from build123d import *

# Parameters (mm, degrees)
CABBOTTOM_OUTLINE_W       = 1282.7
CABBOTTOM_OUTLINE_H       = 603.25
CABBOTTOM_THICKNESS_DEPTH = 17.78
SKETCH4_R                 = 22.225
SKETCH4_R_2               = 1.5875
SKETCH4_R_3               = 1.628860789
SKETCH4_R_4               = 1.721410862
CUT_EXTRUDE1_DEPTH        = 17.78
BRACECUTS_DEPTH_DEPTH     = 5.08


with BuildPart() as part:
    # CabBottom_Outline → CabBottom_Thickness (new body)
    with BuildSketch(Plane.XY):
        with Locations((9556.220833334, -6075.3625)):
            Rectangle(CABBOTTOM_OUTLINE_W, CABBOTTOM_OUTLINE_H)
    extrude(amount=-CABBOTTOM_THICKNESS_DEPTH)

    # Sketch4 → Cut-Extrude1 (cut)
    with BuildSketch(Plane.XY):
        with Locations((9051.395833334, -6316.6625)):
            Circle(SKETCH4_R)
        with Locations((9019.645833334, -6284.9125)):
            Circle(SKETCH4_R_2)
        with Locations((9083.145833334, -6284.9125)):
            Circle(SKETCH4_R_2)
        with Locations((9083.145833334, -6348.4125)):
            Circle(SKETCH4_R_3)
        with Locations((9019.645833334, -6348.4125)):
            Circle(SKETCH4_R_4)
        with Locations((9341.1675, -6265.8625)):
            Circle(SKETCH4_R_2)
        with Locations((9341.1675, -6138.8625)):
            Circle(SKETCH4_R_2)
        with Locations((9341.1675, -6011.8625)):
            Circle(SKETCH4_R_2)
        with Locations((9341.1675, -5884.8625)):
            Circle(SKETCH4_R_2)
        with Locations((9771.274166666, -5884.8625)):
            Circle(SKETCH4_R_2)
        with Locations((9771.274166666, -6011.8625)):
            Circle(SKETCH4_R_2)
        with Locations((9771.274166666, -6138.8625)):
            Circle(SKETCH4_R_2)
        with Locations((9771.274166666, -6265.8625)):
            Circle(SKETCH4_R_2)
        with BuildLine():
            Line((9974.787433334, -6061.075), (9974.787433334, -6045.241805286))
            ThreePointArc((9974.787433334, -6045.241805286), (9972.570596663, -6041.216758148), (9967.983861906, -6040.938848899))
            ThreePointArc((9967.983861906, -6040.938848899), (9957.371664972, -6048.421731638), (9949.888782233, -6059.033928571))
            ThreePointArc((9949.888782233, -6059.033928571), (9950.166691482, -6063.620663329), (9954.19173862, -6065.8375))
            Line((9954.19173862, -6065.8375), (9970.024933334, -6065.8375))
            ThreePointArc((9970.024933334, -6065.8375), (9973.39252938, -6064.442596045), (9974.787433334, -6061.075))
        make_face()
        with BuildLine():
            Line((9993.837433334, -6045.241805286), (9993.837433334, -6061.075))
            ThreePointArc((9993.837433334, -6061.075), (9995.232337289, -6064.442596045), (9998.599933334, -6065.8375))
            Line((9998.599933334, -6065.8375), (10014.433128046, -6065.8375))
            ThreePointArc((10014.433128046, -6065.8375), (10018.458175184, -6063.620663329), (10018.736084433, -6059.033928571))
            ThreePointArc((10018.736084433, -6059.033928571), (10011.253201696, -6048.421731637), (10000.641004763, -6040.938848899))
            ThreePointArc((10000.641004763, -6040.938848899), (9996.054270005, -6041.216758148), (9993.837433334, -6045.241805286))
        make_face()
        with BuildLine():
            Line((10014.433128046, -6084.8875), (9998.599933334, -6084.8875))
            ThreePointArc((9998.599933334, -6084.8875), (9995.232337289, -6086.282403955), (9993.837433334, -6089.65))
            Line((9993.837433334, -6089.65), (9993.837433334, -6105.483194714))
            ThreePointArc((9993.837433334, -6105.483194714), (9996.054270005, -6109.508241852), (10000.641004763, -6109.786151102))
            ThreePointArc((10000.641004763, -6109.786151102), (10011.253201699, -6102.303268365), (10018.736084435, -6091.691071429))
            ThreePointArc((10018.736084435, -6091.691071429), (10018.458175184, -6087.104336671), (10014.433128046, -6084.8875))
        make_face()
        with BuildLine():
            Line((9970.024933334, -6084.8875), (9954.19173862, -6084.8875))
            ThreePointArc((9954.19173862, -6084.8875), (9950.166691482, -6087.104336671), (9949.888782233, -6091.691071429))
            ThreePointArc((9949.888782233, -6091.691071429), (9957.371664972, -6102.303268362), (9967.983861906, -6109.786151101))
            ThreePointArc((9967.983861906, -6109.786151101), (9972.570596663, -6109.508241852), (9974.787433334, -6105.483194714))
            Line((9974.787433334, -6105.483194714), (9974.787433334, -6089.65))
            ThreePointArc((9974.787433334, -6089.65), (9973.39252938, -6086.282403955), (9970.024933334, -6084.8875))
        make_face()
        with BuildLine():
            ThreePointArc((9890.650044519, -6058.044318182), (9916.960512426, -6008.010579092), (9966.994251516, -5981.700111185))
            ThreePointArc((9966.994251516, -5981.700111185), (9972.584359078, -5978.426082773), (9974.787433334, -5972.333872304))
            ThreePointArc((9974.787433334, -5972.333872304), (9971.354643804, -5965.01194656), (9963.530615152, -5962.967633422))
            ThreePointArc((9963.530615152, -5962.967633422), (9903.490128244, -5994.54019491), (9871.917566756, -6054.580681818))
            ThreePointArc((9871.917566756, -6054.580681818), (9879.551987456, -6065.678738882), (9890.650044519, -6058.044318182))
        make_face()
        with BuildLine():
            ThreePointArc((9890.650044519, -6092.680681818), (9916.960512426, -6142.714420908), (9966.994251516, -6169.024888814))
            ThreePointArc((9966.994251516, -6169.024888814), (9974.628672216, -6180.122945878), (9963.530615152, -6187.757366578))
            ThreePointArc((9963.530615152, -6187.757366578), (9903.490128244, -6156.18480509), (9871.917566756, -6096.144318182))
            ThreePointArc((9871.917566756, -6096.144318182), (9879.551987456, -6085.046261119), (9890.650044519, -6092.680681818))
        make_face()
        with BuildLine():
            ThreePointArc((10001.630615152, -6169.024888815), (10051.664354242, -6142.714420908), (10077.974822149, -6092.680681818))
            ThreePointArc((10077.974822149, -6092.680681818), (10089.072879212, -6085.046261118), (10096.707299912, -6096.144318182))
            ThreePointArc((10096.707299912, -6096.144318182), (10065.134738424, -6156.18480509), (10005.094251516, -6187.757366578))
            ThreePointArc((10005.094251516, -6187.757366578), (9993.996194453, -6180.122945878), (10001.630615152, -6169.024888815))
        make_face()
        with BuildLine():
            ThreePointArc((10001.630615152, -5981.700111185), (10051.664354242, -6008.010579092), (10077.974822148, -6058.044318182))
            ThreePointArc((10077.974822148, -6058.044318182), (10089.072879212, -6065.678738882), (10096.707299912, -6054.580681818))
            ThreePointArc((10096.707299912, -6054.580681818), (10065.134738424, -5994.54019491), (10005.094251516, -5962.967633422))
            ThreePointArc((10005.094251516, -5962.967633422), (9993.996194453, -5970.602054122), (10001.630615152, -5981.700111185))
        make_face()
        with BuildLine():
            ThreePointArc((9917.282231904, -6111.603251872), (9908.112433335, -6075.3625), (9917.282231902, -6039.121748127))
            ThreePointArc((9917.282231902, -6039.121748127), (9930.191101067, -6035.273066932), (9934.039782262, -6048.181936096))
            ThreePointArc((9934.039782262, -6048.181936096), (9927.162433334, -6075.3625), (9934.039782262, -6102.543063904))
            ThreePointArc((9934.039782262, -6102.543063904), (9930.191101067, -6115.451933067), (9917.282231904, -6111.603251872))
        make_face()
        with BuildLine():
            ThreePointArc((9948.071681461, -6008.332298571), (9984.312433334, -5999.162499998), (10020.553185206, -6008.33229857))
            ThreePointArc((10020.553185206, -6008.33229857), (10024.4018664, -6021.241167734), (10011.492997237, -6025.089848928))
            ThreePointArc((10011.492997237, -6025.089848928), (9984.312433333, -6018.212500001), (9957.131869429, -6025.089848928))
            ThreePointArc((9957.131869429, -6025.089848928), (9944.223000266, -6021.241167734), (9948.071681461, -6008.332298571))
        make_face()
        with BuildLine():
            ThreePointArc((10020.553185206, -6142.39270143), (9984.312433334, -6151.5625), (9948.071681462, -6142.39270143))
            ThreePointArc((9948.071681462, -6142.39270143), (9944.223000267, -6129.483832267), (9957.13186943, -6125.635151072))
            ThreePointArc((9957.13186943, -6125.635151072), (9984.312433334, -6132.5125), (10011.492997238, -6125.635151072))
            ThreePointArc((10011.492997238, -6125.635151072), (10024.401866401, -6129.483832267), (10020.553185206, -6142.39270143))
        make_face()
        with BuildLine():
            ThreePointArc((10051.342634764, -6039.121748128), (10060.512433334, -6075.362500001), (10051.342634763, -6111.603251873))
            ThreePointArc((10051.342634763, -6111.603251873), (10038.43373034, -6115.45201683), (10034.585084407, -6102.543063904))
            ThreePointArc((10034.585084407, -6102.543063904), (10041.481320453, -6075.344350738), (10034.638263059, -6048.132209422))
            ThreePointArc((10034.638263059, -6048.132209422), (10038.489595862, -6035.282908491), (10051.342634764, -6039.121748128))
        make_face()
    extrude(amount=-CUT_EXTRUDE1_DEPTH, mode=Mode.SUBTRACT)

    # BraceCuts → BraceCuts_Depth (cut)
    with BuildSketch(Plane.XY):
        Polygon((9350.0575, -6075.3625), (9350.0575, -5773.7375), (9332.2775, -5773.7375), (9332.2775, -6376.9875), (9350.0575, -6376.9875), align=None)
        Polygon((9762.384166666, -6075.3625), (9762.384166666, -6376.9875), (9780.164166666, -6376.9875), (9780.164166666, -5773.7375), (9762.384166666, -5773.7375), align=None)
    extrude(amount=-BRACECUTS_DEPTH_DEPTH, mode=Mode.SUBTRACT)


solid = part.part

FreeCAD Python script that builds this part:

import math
import FreeCAD as App
import Part
import Sketcher

V = App.Vector
Q = App.Units.Quantity


def add_polygon(sketch, points):
    """Adds a closed chain of lines whose ends are joined by coincident constraints."""
    first, n = sketch.GeometryCount, len(points)
    for a, b in zip(points, points[1:] + points[:1]):
        sketch.addGeometry(Part.LineSegment(App.Vector(*a, 0), App.Vector(*b, 0)), False)
    for i in range(n):
        sketch.addConstraint(Sketcher.Constraint("Coincident", first + i, 2, first + (i + 1) % n, 1))

doc = App.newDocument("Part")
body = doc.addObject("PartDesign::Body", "Body")

sketch1 = body.newObject("Sketcher::SketchObject", "Sketch")
sketch1.AttachmentSupport = (doc.getObject("XY_Plane"), [""])
sketch1.MapMode = "FlatFace"
add_polygon(sketch1, [(8914.870833, -5773.7375), (8914.870833, -6376.9875), (10197.570833, -6376.9875), (10197.570833, -5773.7375)])
sketch1.addConstraint(Sketcher.Constraint("Vertical", 0))
sketch1.addConstraint(Sketcher.Constraint("Horizontal", 1))
sketch1.addConstraint(Sketcher.Constraint("Vertical", 2))
sketch1.addConstraint(Sketcher.Constraint("Horizontal", 3))
sketch1.addConstraint(Sketcher.Constraint("DistanceX", 1, 1, 1, 2, Q("50.5 in")))
sketch1.addConstraint(Sketcher.Constraint("DistanceY", 0, 2, 0, 1, Q("23.75 in")))
sketch1.addConstraint(Sketcher.Constraint("DistanceY", 0, 2, -1, 1, Q("251.0625 in")))
sketch1.addConstraint(Sketcher.Constraint("DistanceX", -1, 1, 0, 2, 8914.870833))
pad1 = body.newObject("PartDesign::Pad", "Pad")
pad1.Profile = sketch1
pad1.Length = Q("0.7 in")
pad1.Reversed = True

sketch2 = body.newObject("Sketcher::SketchObject", "Sketch001")
sketch2.AttachmentSupport = (doc.getObject("XY_Plane"), [""])
sketch2.MapMode = "FlatFace"
sketch2.addGeometry(Part.Circle(V(9051.395833, -6316.6625, 0), V(0, 0, 1), 22.225), False)
sketch2.addGeometry(Part.Circle(V(9019.645833, -6284.9125, 0), V(0, 0, 1), 1.5875), False)
sketch2.addGeometry(Part.Circle(V(9083.145833, -6284.9125, 0), V(0, 0, 1), 1.5875), False)
sketch2.addGeometry(Part.Circle(V(9083.145833, -6348.4125, 0), V(0, 0, 1), 1.628861), False)
sketch2.addGeometry(Part.Circle(V(9019.645833, -6348.4125, 0), V(0, 0, 1), 1.721411), False)
sketch2.addGeometry(Part.Circle(V(9341.1675, -6265.8625, 0), V(0, 0, 1), 1.5875), False)
sketch2.addGeometry(Part.Circle(V(9341.1675, -6138.8625, 0), V(0, 0, 1), 1.5875), False)
sketch2.addGeometry(Part.Circle(V(9341.1675, -6011.8625, 0), V(0, 0, 1), 1.5875), False)
sketch2.addGeometry(Part.Circle(V(9341.1675, -5884.8625, 0), V(0, 0, 1), 1.5875), False)
sketch2.addGeometry(Part.Circle(V(9771.274167, -5884.8625, 0), V(0, 0, 1), 1.5875), False)
sketch2.addGeometry(Part.Circle(V(9771.274167, -6011.8625, 0), V(0, 0, 1), 1.5875), False)
sketch2.addGeometry(Part.Circle(V(9771.274167, -6138.8625, 0), V(0, 0, 1), 1.5875), False)
sketch2.addGeometry(Part.Circle(V(9771.274167, -6265.8625, 0), V(0, 0, 1), 1.5875), False)
sketch2.addGeometry(Part.LineSegment(V(9974.787433, -6061.075, 0), V(9974.787433, -6045.241805, 0)), False)
sketch2.addGeometry(Part.ArcOfCircle(Part.Circle(V(9970.024933, -6045.241805, 0), V(0, 0, 1), 4.7625), math.radians(0), math.radians(115.376934)), False)
sketch2.addGeometry(Part.ArcOfCircle(Part.Circle(V(9984.312433, -6075.3625, 0), V(0, 0, 1), 38.1), math.radians(115.376934), math.radians(154.623066)), False)
sketch2.addGeometry(Part.ArcOfCircle(Part.Circle(V(9954.191739, -6061.075, 0), V(0, 0, 1), 4.7625), math.radians(154.623066), math.radians(270)), False)
sketch2.addGeometry(Part.LineSegment(V(9954.191739, -6065.8375, 0), V(9970.024933, -6065.8375, 0)), False)
sketch2.addGeometry(Part.ArcOfCircle(Part.Circle(V(9970.024933, -6061.075, 0), V(0, 0, 1), 4.7625), math.radians(-90), math.radians(0)), False)
sketch2.addGeometry(Part.LineSegment(V(9993.837433, -6045.241805, 0), V(9993.837433, -6061.075, 0)), False)
sketch2.addGeometry(Part.ArcOfCircle(Part.Circle(V(9998.599933, -6061.075, 0), V(0, 0, 1), 4.7625), math.radians(-180), math.radians(-90)), False)
sketch2.addGeometry(Part.LineSegment(V(9998.599933, -6065.8375, 0), V(10014.433128, -6065.8375, 0)), False)
sketch2.addGeometry(Part.ArcOfCircle(Part.Circle(V(10014.433128, -6061.075, 0), V(0, 0, 1), 4.7625), math.radians(-90), math.radians(25.376934)), False)
sketch2.addGeometry(Part.ArcOfCircle(Part.Circle(V(9984.312433, -6075.3625, 0), V(0, 0, 1), 38.1), math.radians(25.376934), math.radians(64.623066)), False)
sketch2.addGeometry(Part.ArcOfCircle(Part.Circle(V(9998.599933, -6045.241805, 0), V(0, 0, 1), 4.7625), math.radians(64.623066), math.radians(180)), False)
sketch2.addGeometry(Part.LineSegment(V(10014.433128, -6084.8875, 0), V(9998.599933, -6084.8875, 0)), False)
sketch2.addGeometry(Part.ArcOfCircle(Part.Circle(V(9998.599933, -6089.65, 0), V(0, 0, 1), 4.7625), math.radians(90), math.radians(180)), False)
sketch2.addGeometry(Part.LineSegment(V(9993.837433, -6089.65, 0), V(9993.837433, -6105.483195, 0)), False)
sketch2.addGeometry(Part.ArcOfCircle(Part.Circle(V(9998.599933, -6105.483195, 0), V(0, 0, 1), 4.7625), math.radians(-180), math.radians(-64.623066)), False)
sketch2.addGeometry(Part.ArcOfCircle(Part.Circle(V(9984.312433, -6075.3625, 0), V(0, 0, 1), 38.1), math.radians(-64.623066), math.radians(-25.376934)), False)
sketch2.addGeometry(Part.ArcOfCircle(Part.Circle(V(10014.433128, -6089.65, 0), V(0, 0, 1), 4.7625), math.radians(-25.376933), math.radians(90)), False)
sketch2.addGeometry(Part.LineSegment(V(9970.024933, -6084.8875, 0), V(9954.191739, -6084.8875, 0)), False)
sketch2.addGeometry(Part.ArcOfCircle(Part.Circle(V(9954.191739, -6089.65, 0), V(0, 0, 1), 4.7625), math.radians(90), math.radians(205.376934)), False)
sketch2.addGeometry(Part.ArcOfCircle(Part.Circle(V(9984.312433, -6075.3625, 0), V(0, 0, 1), 38.1), math.radians(-154.623066), math.radians(-115.376934)), False)
sketch2.addGeometry(Part.ArcOfCircle(Part.Circle(V(9970.024933, -6105.483195, 0), V(0, 0, 1), 4.7625), math.radians(-115.376934), math.radians(0)), False)
sketch2.addGeometry(Part.LineSegment(V(9974.787433, -6105.483195, 0), V(9974.787433, -6089.65, 0)), False)
sketch2.addGeometry(Part.ArcOfCircle(Part.Circle(V(9970.024933, -6089.65, 0), V(0, 0, 1), 4.7625), math.radians(0), math.radians(90)), False)
sketch2.addGeometry(Part.ArcOfCircle(Part.Circle(V(9984.312433, -6075.3625, 0), V(0, 0, 1), 95.25), math.radians(100.475682), math.radians(169.524318)), False)
sketch2.addGeometry(Part.ArcOfCircle(Part.Circle(V(9965.262433, -5972.333872, 0), V(0, 0, 1), 9.525), math.radians(-79.524318), math.radians(0)), False)
sketch2.addGeometry(Part.ArcOfCircle(Part.Circle(V(9965.262433, -5972.333872, 0), V(0, 0, 1), 9.525), math.radians(0), math.radians(100.475682)), False)
sketch2.addGeometry(Part.ArcOfCircle(Part.Circle(V(9984.312433, -6075.3625, 0), V(0, 0, 1), 114.3), math.radians(100.475682), math.radians(169.524318)), False)
sketch2.addGeometry(Part.ArcOfCircle(Part.Circle(V(9881.283806, -6056.3125, 0), V(0, 0, 1), 9.525), math.radians(169.524318), math.radians(349.524318)), False)
sketch2.addGeometry(Part.ArcOfCircle(Part.Circle(V(9984.312433, -6075.3625, 0), V(0, 0, 1), 95.25), math.radians(-169.524318), math.radians(-100.475682)), False)
sketch2.addGeometry(Part.ArcOfCircle(Part.Circle(V(9881.283806, -6094.4125, 0), V(0, 0, 1), 9.525), math.radians(10.475682), math.radians(190.475682)), False)
sketch2.addGeometry(Part.ArcOfCircle(Part.Circle(V(9984.312433, -6075.3625, 0), V(0, 0, 1), 114.3), math.radians(-169.524318), math.radians(-100.475682)), False)
sketch2.addGeometry(Part.ArcOfCircle(Part.Circle(V(9965.262433, -6178.391128, 0), V(0, 0, 1), 9.525), math.radians(-100.475682), math.radians(79.524318)), False)
sketch2.addGeometry(Part.ArcOfCircle(Part.Circle(V(9984.312433, -6075.3625, 0), V(0, 0, 1), 95.25), math.radians(-79.524318), math.radians(-10.475682)), False)
sketch2.addGeometry(Part.ArcOfCircle(Part.Circle(V(10003.362433, -6178.391128, 0), V(0, 0, 1), 9.525), math.radians(100.475682), math.radians(280.475682)), False)
sketch2.addGeometry(Part.ArcOfCircle(Part.Circle(V(9984.312433, -6075.3625, 0), V(0, 0, 1), 114.3), math.radians(-79.524318), math.radians(-10.475682)), False)
sketch2.addGeometry(Part.ArcOfCircle(Part.Circle(V(10087.341061, -6094.4125, 0), V(0, 0, 1), 9.525), math.radians(-10.475682), math.radians(169.524318)), False)
sketch2.addGeometry(Part.ArcOfCircle(Part.Circle(V(9984.312433, -6075.3625, 0), V(0, 0, 1), 95.25), math.radians(10.475682), math.radians(79.524318)), False)
sketch2.addGeometry(Part.ArcOfCircle(Part.Circle(V(10087.341061, -6056.3125, 0), V(0, 0, 1), 9.525), math.radians(-169.524318), math.radians(10.475682)), False)
sketch2.addGeometry(Part.ArcOfCircle(Part.Circle(V(9984.312433, -6075.3625, 0), V(0, 0, 1), 114.3), math.radians(10.475682), math.radians(79.524318)), False)
sketch2.addGeometry(Part.ArcOfCircle(Part.Circle(V(10003.362433, -5972.333872, 0), V(0, 0, 1), 9.525), math.radians(79.524318), math.radians(259.524318)), False)
sketch2.addGeometry(Part.ArcOfCircle(Part.Circle(V(9984.312433, -6075.3625, 0), V(0, 0, 1), 76.2), math.radians(151.60155), math.radians(208.39845)), False)
sketch2.addGeometry(Part.ArcOfCircle(Part.Circle(V(9925.661007, -6107.073158, 0), V(0, 0, 1), 9.525), math.radians(-151.60155), math.radians(28.39845)), False)
sketch2.addGeometry(Part.ArcOfCircle(Part.Circle(V(9984.312433, -6075.3625, 0), V(0, 0, 1), 57.15), math.radians(151.60155), math.radians(208.39845)), False)
sketch2.addGeometry(Part.ArcOfCircle(Part.Circle(V(9925.661007, -6043.651842, 0), V(0, 0, 1), 9.525), math.radians(-28.39845), math.radians(151.60155)), False)
sketch2.addGeometry(Part.ArcOfCircle(Part.Circle(V(9984.312433, -6075.3625, 0), V(0, 0, 1), 76.2), math.radians(61.60155), math.radians(118.39845)), False)
sketch2.addGeometry(Part.ArcOfCircle(Part.Circle(V(9952.601775, -6016.711074, 0), V(0, 0, 1), 9.525), math.radians(118.39845), math.radians(298.39845)), False)
sketch2.addGeometry(Part.ArcOfCircle(Part.Circle(V(9984.312433, -6075.3625, 0), V(0, 0, 1), 57.15), math.radians(61.60155), math.radians(118.39845)), False)
sketch2.addGeometry(Part.ArcOfCircle(Part.Circle(V(10016.023091, -6016.711074, 0), V(0, 0, 1), 9.525), math.radians(-118.39845), math.radians(61.60155)), False)
sketch2.addGeometry(Part.ArcOfCircle(Part.Circle(V(9984.312433, -6075.3625, 0), V(0, 0, 1), 76.2), math.radians(-118.39845), math.radians(-61.60155)), False)
sketch2.addGeometry(Part.ArcOfCircle(Part.Circle(V(10016.023091, -6134.013926, 0), V(0, 0, 1), 9.525), math.radians(-61.60155), math.radians(118.39845)), False)
sketch2.addGeometry(Part.ArcOfCircle(Part.Circle(V(9984.312433, -6075.3625, 0), V(0, 0, 1), 57.15), math.radians(-118.39845), math.radians(-61.60155)), False)
sketch2.addGeometry(Part.ArcOfCircle(Part.Circle(V(9952.601775, -6134.013926, 0), V(0, 0, 1), 9.525), math.radians(61.60155), math.radians(241.60155)), False)
sketch2.addGeometry(Part.ArcOfCircle(Part.Circle(V(9984.312433, -6075.3625, 0), V(0, 0, 1), 76.2), math.radians(-28.39845), math.radians(28.39845)), False)
sketch2.addGeometry(Part.ArcOfCircle(Part.Circle(V(10042.994829, -6043.635098, 0), V(0, 0, 1), 9.489794), math.radians(28.39845), math.radians(208.287051)), False)
sketch2.addGeometry(Part.ArcOfCircle(Part.Circle(V(9984.176531, -6075.288344, 0), V(0, 0, 1), 57.304817), math.radians(-28.399048), math.radians(28.287051)), False)
sketch2.addGeometry(Part.ArcOfCircle(Part.Circle(V(10042.963817, -6107.073237, 0), V(0, 0, 1), 9.525), math.radians(151.601005), math.radians(331.602094)), False)
sketch2.addConstraint(Sketcher.Constraint("Tangent", 13, 2, 14, 1))
sketch2.addConstraint(Sketcher.Constraint("Tangent", 14, 2, 15, 1))
sketch2.addConstraint(Sketcher.Constraint("Tangent", 15, 2, 16, 1))
sketch2.addConstraint(Sketcher.Constraint("Tangent", 16, 2, 17, 1))
sketch2.addConstraint(Sketcher.Constraint("Tangent", 17, 2, 18, 1))
sketch2.addConstraint(Sketcher.Constraint("Tangent", 18, 2, 13, 1))
sketch2.addConstraint(Sketcher.Constraint("Tangent", 19, 2, 20, 1))
sketch2.addConstraint(Sketcher.Constraint("Tangent", 20, 2, 21, 1))
sketch2.addConstraint(Sketcher.Constraint("Tangent", 21, 2, 22, 1))
sketch2.addConstraint(Sketcher.Constraint("Tangent", 22, 2, 23, 1))
sketch2.addConstraint(Sketcher.Constraint("Tangent", 23, 2, 24, 1))
sketch2.addConstraint(Sketcher.Constraint("Tangent", 24, 2, 19, 1))
sketch2.addConstraint(Sketcher.Constraint("Tangent", 25, 2, 26, 1))
sketch2.addConstraint(Sketcher.Constraint("Tangent", 26, 2, 27, 1))
sketch2.addConstraint(Sketcher.Constraint("Tangent", 27, 2, 28, 1))
sketch2.addConstraint(Sketcher.Constraint("Tangent", 28, 2, 29, 1))
sketch2.addConstraint(Sketcher.Constraint("Tangent", 29, 2, 30, 1))
sketch2.addConstraint(Sketcher.Constraint("Tangent", 30, 2, 25, 1))
sketch2.addConstraint(Sketcher.Constraint("Tangent", 31, 2, 32, 1))
sketch2.addConstraint(Sketcher.Constraint("Tangent", 32, 2, 33, 1))
sketch2.addConstraint(Sketcher.Constraint("Tangent", 33, 2, 34, 1))
sketch2.addConstraint(Sketcher.Constraint("Tangent", 34, 2, 35, 1))
sketch2.addConstraint(Sketcher.Constraint("Tangent", 35, 2, 36, 1))
sketch2.addConstraint(Sketcher.Constraint("Tangent", 36, 2, 31, 1))
sketch2.addConstraint(Sketcher.Constraint("Tangent", 37, 1, 38, 1))
sketch2.addConstraint(Sketcher.Constraint("Tangent", 38, 2, 39, 1))
sketch2.addConstraint(Sketcher.Constraint("Tangent", 39, 2, 40, 1))
sketch2.addConstraint(Sketcher.Constraint("Tangent", 40, 2, 41, 1))
sketch2.addConstraint(Sketcher.Constraint("Tangent", 41, 2, 37, 2))
sketch2.addConstraint(Sketcher.Constraint("Tangent", 42, 1, 43, 1))
sketch2.addConstraint(Sketcher.Constraint("Tangent", 43, 2, 44, 1))
sketch2.addConstraint(Sketcher.Constraint("Tangent", 44, 2, 45, 1))
sketch2.addConstraint(Sketcher.Constraint("Tangent", 45, 2, 42, 2))
sketch2.addConstraint(Sketcher.Constraint("Tangent", 46, 1, 47, 1))
sketch2.addConstraint(Sketcher.Constraint("Tangent", 47, 2, 48, 1))
sketch2.addConstraint(Sketcher.Constraint("Tangent", 48, 2, 49, 1))
sketch2.addConstraint(Sketcher.Constraint("Tangent", 49, 2, 46, 2))
sketch2.addConstraint(Sketcher.Constraint("Tangent", 50, 1, 51, 1))
sketch2.addConstraint(Sketcher.Constraint("Tangent", 51, 2, 52, 1))
sketch2.addConstraint(Sketcher.Constraint("Tangent", 52, 2, 53, 1))
sketch2.addConstraint(Sketcher.Constraint("Tangent", 53, 2, 50, 2))
sketch2.addConstraint(Sketcher.Constraint("Tangent", 54, 2, 55, 1))
sketch2.addConstraint(Sketcher.Constraint("Tangent", 55, 2, 56, 2))
sketch2.addConstraint(Sketcher.Constraint("Tangent", 56, 1, 57, 1))
sketch2.addConstraint(Sketcher.Constraint("Tangent", 57, 2, 54, 1))
sketch2.addConstraint(Sketcher.Constraint("Tangent", 58, 2, 59, 1))
sketch2.addConstraint(Sketcher.Constraint("Tangent", 59, 2, 60, 2))
sketch2.addConstraint(Sketcher.Constraint("Tangent", 60, 1, 61, 1))
sketch2.addConstraint(Sketcher.Constraint("Tangent", 61, 2, 58, 1))
sketch2.addConstraint(Sketcher.Constraint("Tangent", 62, 2, 63, 1))
sketch2.addConstraint(Sketcher.Constraint("Tangent", 63, 2, 64, 2))
sketch2.addConstraint(Sketcher.Constraint("Tangent", 64, 1, 65, 1))
sketch2.addConstraint(Sketcher.Constraint("Tangent", 65, 2, 62, 1))
sketch2.addConstraint(Sketcher.Constraint("Tangent", 66, 2, 67, 1))
sketch2.addConstraint(Sketcher.Constraint("Tangent", 67, 2, 68, 2))
sketch2.addConstraint(Sketcher.Constraint("Tangent", 68, 1, 69, 1))
sketch2.addConstraint(Sketcher.Constraint("Coincident", 69, 2, 66, 1))
sketch2.addConstraint(Sketcher.Constraint("Vertical", 13))
sketch2.addConstraint(Sketcher.Constraint("Horizontal", 17))
sketch2.addConstraint(Sketcher.Constraint("Vertical", 19))
sketch2.addConstraint(Sketcher.Constraint("Horizontal", 21))
sketch2.addConstraint(Sketcher.Constraint("Horizontal", 25))
sketch2.addConstraint(Sketcher.Constraint("Vertical", 27))
sketch2.addConstraint(Sketcher.Constraint("Horizontal", 31))
sketch2.addConstraint(Sketcher.Constraint("Vertical", 35))
sketch2.addConstraint(Sketcher.Constraint("Coincident", 23, 3, 15, 3))
sketch2.addConstraint(Sketcher.Constraint("Coincident", 29, 3, 15, 3))
sketch2.addConstraint(Sketcher.Constraint("Coincident", 33, 3, 15, 3))
sketch2.addConstraint(Sketcher.Constraint("Coincident", 37, 3, 15, 3))
sketch2.addConstraint(Sketcher.Constraint("Coincident", 40, 3, 15, 3))
sketch2.addConstraint(Sketcher.Constraint("Coincident", 42, 3, 15, 3))
sketch2.addConstraint(Sketcher.Constraint("Coincident", 44, 3, 15, 3))
sketch2.addConstraint(Sketcher.Constraint("Coincident", 46, 3, 15, 3))
sketch2.addConstraint(Sketcher.Constraint("Coincident", 48, 3, 15, 3))
sketch2.addConstraint(Sketcher.Constraint("Coincident", 50, 3, 15, 3))
sketch2.addConstraint(Sketcher.Constraint("Coincident", 52, 3, 15, 3))
sketch2.addConstraint(Sketcher.Constraint("Coincident", 54, 3, 15, 3))
sketch2.addConstraint(Sketcher.Constraint("Coincident", 56, 3, 15, 3))
sketch2.addConstraint(Sketcher.Constraint("Coincident", 58, 3, 15, 3))
sketch2.addConstraint(Sketcher.Constraint("Coincident", 60, 3, 15, 3))
sketch2.addConstraint(Sketcher.Constraint("Coincident", 62, 3, 15, 3))
sketch2.addConstraint(Sketcher.Constraint("Coincident", 64, 3, 15, 3))
sketch2.addConstraint(Sketcher.Constraint("Coincident", 66, 3, 15, 3))
sketch2.addConstraint(Sketcher.Constraint("Equal", 1, 2))
sketch2.addConstraint(Sketcher.Constraint("Equal", 2, 5))
sketch2.addConstraint(Sketcher.Constraint("Equal", 5, 6))
sketch2.addConstraint(Sketcher.Constraint("Equal", 6, 7))
sketch2.addConstraint(Sketcher.Constraint("Equal", 7, 8))
sketch2.addConstraint(Sketcher.Constraint("Equal", 8, 9))
sketch2.addConstraint(Sketcher.Constraint("Equal", 9, 10))
sketch2.addConstraint(Sketcher.Constraint("Equal", 10, 11))
sketch2.addConstraint(Sketcher.Constraint("Equal", 11, 12))
sketch2.addConstraint(Sketcher.Constraint("Equal", 14, 16))
sketch2.addConstraint(Sketcher.Constraint("Equal", 16, 18))
sketch2.addConstraint(Sketcher.Constraint("Equal", 18, 20))
sketch2.addConstraint(Sketcher.Constraint("Equal", 20, 22))
sketch2.addConstraint(Sketcher.Constraint("Equal", 15, 23))
sketch2.addConstraint(Sketcher.Constraint("Equal", 22, 24))
sketch2.addConstraint(Sketcher.Constraint("Equal", 24, 26))
sketch2.addConstraint(Sketcher.Constraint("Equal", 26, 28))
sketch2.addConstraint(Sketcher.Constraint("Equal", 23, 29))
sketch2.addConstraint(Sketcher.Constraint("Equal", 28, 30))
sketch2.addConstraint(Sketcher.Constraint("Equal", 30, 32))
sketch2.addConstraint(Sketcher.Constraint("Equal", 29, 33))
sketch2.addConstraint(Sketcher.Constraint("Equal", 32, 34))
sketch2.addConstraint(Sketcher.Constraint("Equal", 34, 36))
sketch2.addConstraint(Sketcher.Constraint("Equal", 38, 39))
sketch2.addConstraint(Sketcher.Constraint("Equal", 37, 42))
sketch2.addConstraint(Sketcher.Constraint("Equal", 41, 43))
sketch2.addConstraint(Sketcher.Constraint("Equal", 42, 46))
sketch2.addConstraint(Sketcher.Constraint("Equal", 45, 47))
sketch2.addConstraint(Sketcher.Constraint("Equal", 46, 50))
sketch2.addConstraint(Sketcher.Constraint("Equal", 49, 51))
sketch2.addConstraint(Sketcher.Constraint("Equal", 53, 55))
sketch2.addConstraint(Sketcher.Constraint("Equal", 54, 58))
sketch2.addConstraint(Sketcher.Constraint("Equal", 57, 59))
sketch2.addConstraint(Sketcher.Constraint("Equal", 58, 62))
sketch2.addConstraint(Sketcher.Constraint("Equal", 61, 63))
sketch2.addConstraint(Sketcher.Constraint("Equal", 62, 66))
sketch2.addConstraint(Sketcher.Constraint("Equal", 65, 69))
sketch2.addConstraint(Sketcher.Constraint("Horizontal", 1, 3, 2, 3))
sketch2.addConstraint(Sketcher.Constraint("Horizontal", 3, 3, 4, 3))
sketch2.addConstraint(Sketcher.Constraint("Horizontal", 8, 3, 9, 3))
sketch2.addConstraint(Sketcher.Constraint("Horizontal", 7, 3, 10, 3))
sketch2.addConstraint(Sketcher.Constraint("Horizontal", 6, 3, 11, 3))
sketch2.addConstraint(Sketcher.Constraint("Horizontal", 5, 3, 12, 3))
sketch2.addConstraint(Sketcher.Constraint("Horizontal", 18, 3, 20, 3))
sketch2.addConstraint(Sketcher.Constraint("Horizontal", 14, 3, 24, 3))
sketch2.addConstraint(Sketcher.Constraint("Horizontal", 30, 3, 32, 3))
sketch2.addConstraint(Sketcher.Constraint("Horizontal", 28, 3, 34, 3))
sketch2.addConstraint(Sketcher.Constraint("Horizontal", 45, 3, 47, 3))
sketch2.addConstraint(Sketcher.Constraint("Horizontal", 43, 3, 49, 3))
sketch2.addConstraint(Sketcher.Constraint("Horizontal", 41, 3, 51, 3))
sketch2.addConstraint(Sketcher.Constraint("Horizontal", 39, 3, 53, 3))
sketch2.addConstraint(Sketcher.Constraint("Horizontal", 59, 3, 61, 3))
sketch2.addConstraint(Sketcher.Constraint("Horizontal", 63, 3, 65, 3))
sketch2.addConstraint(Sketcher.Constraint("Horizontal", 53, 3, 38, 2))
sketch2.addConstraint(Sketcher.Constraint("Horizontal", 57, 2, 66, 2))
sketch2.addConstraint(Sketcher.Constraint("Horizontal", 55, 2, 68, 1))
sketch2.addConstraint(Sketcher.Constraint("Horizontal", 54, 2, 69, 2))
sketch2.addConstraint(Sketcher.Constraint("Vertical", 2, 3, 3, 3))
sketch2.addConstraint(Sketcher.Constraint("Vertical", 1, 3, 4, 3))
sketch2.addConstraint(Sketcher.Constraint("Vertical", 5, 3, 6, 3))
sketch2.addConstraint(Sketcher.Constraint("Vertical", 6, 3, 7, 3))
sketch2.addConstraint(Sketcher.Constraint("Vertical", 7, 3, 8, 3))
sketch2.addConstraint(Sketcher.Constraint("Vertical", 9, 3, 10, 3))
sketch2.addConstraint(Sketcher.Constraint("Vertical", 10, 3, 11, 3))
sketch2.addConstraint(Sketcher.Constraint("Vertical", 11, 3, 12, 3))
sketch2.addConstraint(Sketcher.Constraint("Vertical", 24, 3, 26, 3))
sketch2.addConstraint(Sketcher.Constraint("Vertical", 22, 3, 30, 3))
sketch2.addConstraint(Sketcher.Constraint("Vertical", 41, 3, 43, 3))
sketch2.addConstraint(Sketcher.Constraint("Vertical", 39, 3, 45, 3))
sketch2.addConstraint(Sketcher.Constraint("Vertical", 55, 3, 57, 3))
sketch2.addConstraint(Sketcher.Constraint("Vertical", 61, 3, 63, 3))
sketch2.addConstraint(Sketcher.Constraint("Vertical", 35, 2, 38, 2))
sketch2.addConstraint(Sketcher.Constraint("Equal", 31, 13))
sketch2.addConstraint(Sketcher.Constraint("Radius", 54, Q("3 in")))
sketch2.addConstraint(Sketcher.Constraint("Radius", 15, Q("1.5 in")))
sketch2.addConstraint(Sketcher.Constraint("Radius", 40, Q("4.5 in")))
sketch2.addConstraint(Sketcher.Constraint("Diameter", 0, Q("1.75 in")))
sketch2.addConstraint(Sketcher.Constraint("Radius", 37, Q("3.75 in")))
sketch2.addConstraint(Sketcher.Constraint("Diameter", 1, Q("0.125 in")))
sketch2.addConstraint(Sketcher.Constraint("Radius", 14, Q("0.1875 in")))
sketch2.addConstraint(Sketcher.Constraint("DistanceY", 26, 3, -1, 1, Q("239.75 in")))
sketch2.addConstraint(Sketcher.Constraint("Diameter", 3, 3.257722))
sketch2.addConstraint(Sketcher.Constraint("Diameter", 4, 3.442822))
sketch2.addConstraint(Sketcher.Constraint("DistanceY", 0, 3, -1, 1, Q("248.6875 in")))
sketch2.addConstraint(Sketcher.Constraint("DistanceY", 1, 3, -1, 1, Q("247.4375 in")))
sketch2.addConstraint(Sketcher.Constraint("DistanceY", 3, 3, -1, 1, Q("249.9375 in")))
sketch2.addConstraint(Sketcher.Constraint("DistanceY", 5, 3, -1, 1, Q("246.6875 in")))
sketch2.addConstraint(Sketcher.Constraint("DistanceY", 6, 3, -1, 1, Q("241.6875 in")))
sketch2.addConstraint(Sketcher.Constraint("DistanceY", 7, 3, -1, 1, Q("236.6875 in")))
sketch2.addConstraint(Sketcher.Constraint("DistanceY", 8, 3, -1, 1, Q("231.6875 in")))
sketch2.addConstraint(Sketcher.Constraint("DistanceY", 15, 3, -1, 1, Q("239.1875 in")))
sketch2.addConstraint(Sketcher.Constraint("DistanceY", 41, 3, -1, 1, Q("238.4375 in")))
sketch2.addConstraint(Sketcher.Constraint("DistanceX", -1, 1, 5, 3, Q("367.7625 in")))
sketch2.addConstraint(Sketcher.Constraint("Radius", 67, 9.489794))
sketch2.addConstraint(Sketcher.Constraint("Radius", 68, 57.304817))
sketch2.addConstraint(Sketcher.Constraint("DistanceY", 67, 3, -1, 1, 6043.635098))
sketch2.addConstraint(Sketcher.Constraint("DistanceX", -1, 1, 48, 2, 10096.7073))
sketch2.addConstraint(Sketcher.Constraint("DistanceY", 58, 2, -1, 1, 6008.332299))
sketch2.addConstraint(Sketcher.Constraint("DistanceX", -1, 1, 0, 3, 9051.395833))
sketch2.addConstraint(Sketcher.Constraint("DistanceX", -1, 1, 1, 3, 9019.645833))
sketch2.addConstraint(Sketcher.Constraint("DistanceX", -1, 1, 2, 3, 9083.145833))
sketch2.addConstraint(Sketcher.Constraint("DistanceX", -1, 1, 9, 3, 9771.274167))
pocket1 = body.newObject("PartDesign::Pocket", "Pocket")
pocket1.Profile = sketch2
pocket1.Length = Q("0.7 in")

sketch3 = body.newObject("Sketcher::SketchObject", "Sketch002")
sketch3.AttachmentSupport = (doc.getObject("XY_Plane"), [""])
sketch3.MapMode = "FlatFace"
add_polygon(sketch3, [(9350.0575, -5773.7375), (9332.2775, -5773.7375), (9332.2775, -6376.9875), (9350.0575, -6376.9875)])
add_polygon(sketch3, [(9762.384167, -6376.9875), (9780.164167, -6376.9875), (9780.164167, -5773.7375), (9762.384167, -5773.7375)])
sketch3.addConstraint(Sketcher.Constraint("Horizontal", 0))
sketch3.addConstraint(Sketcher.Constraint("Vertical", 1))
sketch3.addConstraint(Sketcher.Constraint("Horizontal", 2))
sketch3.addConstraint(Sketcher.Constraint("Vertical", 3))
sketch3.addConstraint(Sketcher.Constraint("Horizontal", 4))
sketch3.addConstraint(Sketcher.Constraint("Vertical", 5))
sketch3.addConstraint(Sketcher.Constraint("Horizontal", 6))
sketch3.addConstraint(Sketcher.Constraint("Vertical", 7))
sketch3.addConstraint(Sketcher.Constraint("Horizontal", 2, 2, 4, 2))
sketch3.addConstraint(Sketcher.Constraint("Horizontal", 3, 2, 5, 2))
sketch3.addConstraint(Sketcher.Constraint("Equal", 2, 4))
sketch3.addConstraint(Sketcher.Constraint("DistanceX", 0, 2, 0, 1, Q("0.7 in")))
sketch3.addConstraint(Sketcher.Constraint("DistanceY", 1, 2, 1, 1, Q("23.75 in")))
sketch3.addConstraint(Sketcher.Constraint("DistanceY", 0, 2, -1, 1, Q("227.3125 in")))
sketch3.addConstraint(Sketcher.Constraint("DistanceX", -1, 1, 0, 2, Q("367.4125 in")))
sketch3.addConstraint(Sketcher.Constraint("DistanceX", -1, 1, 4, 2, 9780.164167))
pocket2 = body.newObject("PartDesign::Pocket", "Pocket001")
pocket2.Profile = sketch3
pocket2.Length = Q("0.2 in")

doc.recompute()
